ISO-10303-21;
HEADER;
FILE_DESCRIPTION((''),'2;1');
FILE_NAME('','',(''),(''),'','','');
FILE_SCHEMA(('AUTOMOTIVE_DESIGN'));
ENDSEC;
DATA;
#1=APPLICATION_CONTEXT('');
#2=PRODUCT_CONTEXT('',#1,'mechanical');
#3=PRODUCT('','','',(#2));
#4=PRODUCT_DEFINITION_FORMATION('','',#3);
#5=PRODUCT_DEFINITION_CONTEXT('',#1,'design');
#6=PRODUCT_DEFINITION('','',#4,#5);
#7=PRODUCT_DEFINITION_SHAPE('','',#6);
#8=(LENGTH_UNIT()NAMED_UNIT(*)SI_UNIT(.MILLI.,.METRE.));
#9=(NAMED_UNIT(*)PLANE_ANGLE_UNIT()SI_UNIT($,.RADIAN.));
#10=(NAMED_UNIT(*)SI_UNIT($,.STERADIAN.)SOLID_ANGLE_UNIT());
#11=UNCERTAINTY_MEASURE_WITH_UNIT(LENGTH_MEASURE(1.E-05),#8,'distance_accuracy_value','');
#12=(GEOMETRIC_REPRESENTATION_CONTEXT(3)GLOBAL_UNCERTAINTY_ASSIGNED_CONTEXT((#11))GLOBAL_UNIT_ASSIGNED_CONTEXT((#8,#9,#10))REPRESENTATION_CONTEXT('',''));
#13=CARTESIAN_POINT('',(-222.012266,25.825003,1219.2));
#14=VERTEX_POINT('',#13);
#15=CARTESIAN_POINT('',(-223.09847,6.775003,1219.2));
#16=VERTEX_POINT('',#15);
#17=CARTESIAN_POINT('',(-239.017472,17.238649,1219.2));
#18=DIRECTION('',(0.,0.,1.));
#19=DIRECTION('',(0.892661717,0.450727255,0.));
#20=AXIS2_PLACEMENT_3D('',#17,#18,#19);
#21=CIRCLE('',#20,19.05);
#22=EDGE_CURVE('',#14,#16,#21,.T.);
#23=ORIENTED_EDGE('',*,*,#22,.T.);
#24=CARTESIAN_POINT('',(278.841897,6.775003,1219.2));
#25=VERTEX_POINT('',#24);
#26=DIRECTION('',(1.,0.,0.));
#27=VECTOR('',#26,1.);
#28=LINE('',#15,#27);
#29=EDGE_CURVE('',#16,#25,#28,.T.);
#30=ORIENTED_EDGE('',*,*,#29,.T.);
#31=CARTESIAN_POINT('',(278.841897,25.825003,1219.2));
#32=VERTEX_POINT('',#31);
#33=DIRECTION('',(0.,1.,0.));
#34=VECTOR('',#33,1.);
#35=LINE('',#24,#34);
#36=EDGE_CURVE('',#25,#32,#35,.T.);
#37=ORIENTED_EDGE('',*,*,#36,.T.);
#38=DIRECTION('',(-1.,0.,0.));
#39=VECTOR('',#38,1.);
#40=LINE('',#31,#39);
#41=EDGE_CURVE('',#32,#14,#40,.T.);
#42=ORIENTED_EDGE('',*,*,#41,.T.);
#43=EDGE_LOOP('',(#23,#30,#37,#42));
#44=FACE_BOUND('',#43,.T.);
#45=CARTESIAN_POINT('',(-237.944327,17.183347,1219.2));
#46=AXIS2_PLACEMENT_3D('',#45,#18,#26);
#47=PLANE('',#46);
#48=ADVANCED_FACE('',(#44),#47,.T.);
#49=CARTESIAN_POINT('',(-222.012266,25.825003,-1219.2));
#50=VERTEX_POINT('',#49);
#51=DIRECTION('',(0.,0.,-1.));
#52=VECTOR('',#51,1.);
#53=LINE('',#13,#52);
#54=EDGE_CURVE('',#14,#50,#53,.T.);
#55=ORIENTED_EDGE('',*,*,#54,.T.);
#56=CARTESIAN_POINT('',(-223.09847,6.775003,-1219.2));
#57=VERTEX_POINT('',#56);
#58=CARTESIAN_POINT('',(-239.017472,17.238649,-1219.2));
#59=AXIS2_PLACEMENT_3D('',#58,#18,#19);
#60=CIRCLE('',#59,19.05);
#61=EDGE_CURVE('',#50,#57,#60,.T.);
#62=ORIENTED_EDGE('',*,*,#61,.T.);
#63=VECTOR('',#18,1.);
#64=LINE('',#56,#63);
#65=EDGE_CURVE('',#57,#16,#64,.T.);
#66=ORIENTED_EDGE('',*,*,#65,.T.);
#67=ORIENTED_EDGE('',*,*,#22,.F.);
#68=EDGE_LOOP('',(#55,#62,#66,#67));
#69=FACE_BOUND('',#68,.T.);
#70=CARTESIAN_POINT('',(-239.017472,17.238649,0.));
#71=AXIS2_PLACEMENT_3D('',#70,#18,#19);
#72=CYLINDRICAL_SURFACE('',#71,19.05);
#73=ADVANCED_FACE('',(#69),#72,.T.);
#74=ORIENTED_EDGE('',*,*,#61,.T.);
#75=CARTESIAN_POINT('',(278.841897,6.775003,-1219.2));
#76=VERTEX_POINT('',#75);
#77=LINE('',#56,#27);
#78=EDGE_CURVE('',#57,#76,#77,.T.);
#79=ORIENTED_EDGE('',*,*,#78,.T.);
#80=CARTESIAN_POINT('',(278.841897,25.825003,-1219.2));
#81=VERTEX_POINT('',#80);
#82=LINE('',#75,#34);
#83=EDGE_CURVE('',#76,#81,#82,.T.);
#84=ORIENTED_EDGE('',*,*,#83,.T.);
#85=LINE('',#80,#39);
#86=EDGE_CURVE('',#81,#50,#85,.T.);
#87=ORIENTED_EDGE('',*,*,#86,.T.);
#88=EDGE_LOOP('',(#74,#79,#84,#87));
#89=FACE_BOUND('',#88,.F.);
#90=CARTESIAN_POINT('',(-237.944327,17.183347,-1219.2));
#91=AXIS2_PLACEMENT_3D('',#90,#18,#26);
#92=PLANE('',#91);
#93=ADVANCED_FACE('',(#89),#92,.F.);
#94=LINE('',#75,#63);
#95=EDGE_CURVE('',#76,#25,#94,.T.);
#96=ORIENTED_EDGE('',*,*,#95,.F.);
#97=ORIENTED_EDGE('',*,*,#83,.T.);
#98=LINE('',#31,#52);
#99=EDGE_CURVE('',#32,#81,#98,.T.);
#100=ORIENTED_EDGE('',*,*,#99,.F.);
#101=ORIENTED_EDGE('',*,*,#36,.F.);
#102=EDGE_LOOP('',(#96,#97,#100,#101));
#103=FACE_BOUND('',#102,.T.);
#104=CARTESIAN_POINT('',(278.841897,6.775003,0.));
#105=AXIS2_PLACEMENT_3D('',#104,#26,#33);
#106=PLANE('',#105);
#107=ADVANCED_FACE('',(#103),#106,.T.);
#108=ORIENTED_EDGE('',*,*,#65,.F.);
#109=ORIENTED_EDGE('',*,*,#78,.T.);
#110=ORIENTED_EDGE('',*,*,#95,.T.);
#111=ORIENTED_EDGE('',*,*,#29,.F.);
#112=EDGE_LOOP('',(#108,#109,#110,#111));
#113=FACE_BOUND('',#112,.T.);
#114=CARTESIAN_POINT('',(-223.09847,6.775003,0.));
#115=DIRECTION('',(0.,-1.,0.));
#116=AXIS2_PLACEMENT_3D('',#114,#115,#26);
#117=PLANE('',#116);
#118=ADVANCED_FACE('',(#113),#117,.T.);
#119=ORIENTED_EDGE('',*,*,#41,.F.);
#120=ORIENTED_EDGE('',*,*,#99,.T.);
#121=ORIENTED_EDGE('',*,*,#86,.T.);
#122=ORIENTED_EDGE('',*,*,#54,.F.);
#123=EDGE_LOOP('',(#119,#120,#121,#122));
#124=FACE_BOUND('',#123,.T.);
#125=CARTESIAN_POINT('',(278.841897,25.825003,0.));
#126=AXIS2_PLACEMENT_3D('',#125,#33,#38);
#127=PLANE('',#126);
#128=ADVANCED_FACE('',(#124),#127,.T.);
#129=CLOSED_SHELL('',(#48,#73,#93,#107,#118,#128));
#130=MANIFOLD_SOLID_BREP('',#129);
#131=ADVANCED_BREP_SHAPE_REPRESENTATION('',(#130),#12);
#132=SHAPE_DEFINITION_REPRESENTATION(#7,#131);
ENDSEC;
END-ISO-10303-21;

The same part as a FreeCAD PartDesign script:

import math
import FreeCAD as App
import Part
import Sketcher

V = App.Vector
Q = App.Units.Quantity

doc = App.newDocument("Part")
params = doc.addObject("Spreadsheet::Sheet", "Params")
for row, (alias, value) in enumerate([
    ("sketch1_radius", "0.75 in"),
    ("sketch1_height", "0.75 in"),
    ("pad1_length", "96 in"),
], start=1):
    params.set(f"A{row}", alias)
    params.set(f"B{row}", "=" + value)
    params.setAlias(f"B{row}", alias)

body = doc.addObject("PartDesign::Body", "Body")

# Sketch on XY plane
sketch1 = doc.addObject("Sketcher::SketchObject", "Sketch")
body.addObject(sketch1)
sketch1.AttachmentSupport = (doc.XY_Plane, [""])
sketch1.MapMode = "FlatFace"
sketch1.addGeometry(Part.ArcOfCircle(Part.Circle(V(-239.017472, 17.238649, 0), V(0, 0, 1), 19.05), math.radians(26.790353), math.radians(326.682865)), False)
sketch1.addGeometry(Part.LineSegment(V(-223.09847, 6.775003, 0), V(278.841897, 6.775003, 0)), False)
sketch1.addGeometry(Part.LineSegment(V(278.841897, 6.775003, 0), V(278.841897, 25.825003, 0)), False)
sketch1.addGeometry(Part.LineSegment(V(278.841897, 25.825003, 0), V(-222.012266, 25.825003, 0)), False)
sketch1.addConstraint(Sketcher.Constraint("Coincident", 0, 2, 1, 1))
sketch1.addConstraint(Sketcher.Constraint("Coincident", 1, 2, 2, 1))
sketch1.addConstraint(Sketcher.Constraint("Coincident", 2, 2, 3, 1))
sketch1.addConstraint(Sketcher.Constraint("Coincident", 3, 2, 0, 1))
sketch1.addConstraint(Sketcher.Constraint("Horizontal", 1))
sketch1.addConstraint(Sketcher.Constraint("Vertical", 2))
sketch1.addConstraint(Sketcher.Constraint("Horizontal", 3))
sketch1.addConstraint(Sketcher.Constraint("Radius", 0, Q("0.75 in")))
sketch1.addConstraint(Sketcher.Constraint("DistanceY", 2, 1, 2, 2, Q("0.75 in")))
sketch1.addConstraint(Sketcher.Constraint("DistanceX", 0, 3, 0, 2, 15.919002))
sketch1.addConstraint(Sketcher.Constraint("DistanceX", 1, 1, 1, 2, 501.940367))
sketch1.addConstraint(Sketcher.Constraint("DistanceX", 0, 3, -1, 1, 239.017472))
sketch1.addConstraint(Sketcher.Constraint("DistanceY", -1, 1, 0, 3, 17.238649))
sketch1.setExpression("Constraints[7]", "Params.sketch1_radius")
sketch1.setExpression("Constraints[8]", "Params.sketch1_height")
pad1 = doc.addObject("PartDesign::Pad", "Pad")
body.addObject(pad1)
pad1.Profile = sketch1
pad1.setExpression("Length", "Params.pad1_length")
pad1.Midplane = True

doc.recompute()
